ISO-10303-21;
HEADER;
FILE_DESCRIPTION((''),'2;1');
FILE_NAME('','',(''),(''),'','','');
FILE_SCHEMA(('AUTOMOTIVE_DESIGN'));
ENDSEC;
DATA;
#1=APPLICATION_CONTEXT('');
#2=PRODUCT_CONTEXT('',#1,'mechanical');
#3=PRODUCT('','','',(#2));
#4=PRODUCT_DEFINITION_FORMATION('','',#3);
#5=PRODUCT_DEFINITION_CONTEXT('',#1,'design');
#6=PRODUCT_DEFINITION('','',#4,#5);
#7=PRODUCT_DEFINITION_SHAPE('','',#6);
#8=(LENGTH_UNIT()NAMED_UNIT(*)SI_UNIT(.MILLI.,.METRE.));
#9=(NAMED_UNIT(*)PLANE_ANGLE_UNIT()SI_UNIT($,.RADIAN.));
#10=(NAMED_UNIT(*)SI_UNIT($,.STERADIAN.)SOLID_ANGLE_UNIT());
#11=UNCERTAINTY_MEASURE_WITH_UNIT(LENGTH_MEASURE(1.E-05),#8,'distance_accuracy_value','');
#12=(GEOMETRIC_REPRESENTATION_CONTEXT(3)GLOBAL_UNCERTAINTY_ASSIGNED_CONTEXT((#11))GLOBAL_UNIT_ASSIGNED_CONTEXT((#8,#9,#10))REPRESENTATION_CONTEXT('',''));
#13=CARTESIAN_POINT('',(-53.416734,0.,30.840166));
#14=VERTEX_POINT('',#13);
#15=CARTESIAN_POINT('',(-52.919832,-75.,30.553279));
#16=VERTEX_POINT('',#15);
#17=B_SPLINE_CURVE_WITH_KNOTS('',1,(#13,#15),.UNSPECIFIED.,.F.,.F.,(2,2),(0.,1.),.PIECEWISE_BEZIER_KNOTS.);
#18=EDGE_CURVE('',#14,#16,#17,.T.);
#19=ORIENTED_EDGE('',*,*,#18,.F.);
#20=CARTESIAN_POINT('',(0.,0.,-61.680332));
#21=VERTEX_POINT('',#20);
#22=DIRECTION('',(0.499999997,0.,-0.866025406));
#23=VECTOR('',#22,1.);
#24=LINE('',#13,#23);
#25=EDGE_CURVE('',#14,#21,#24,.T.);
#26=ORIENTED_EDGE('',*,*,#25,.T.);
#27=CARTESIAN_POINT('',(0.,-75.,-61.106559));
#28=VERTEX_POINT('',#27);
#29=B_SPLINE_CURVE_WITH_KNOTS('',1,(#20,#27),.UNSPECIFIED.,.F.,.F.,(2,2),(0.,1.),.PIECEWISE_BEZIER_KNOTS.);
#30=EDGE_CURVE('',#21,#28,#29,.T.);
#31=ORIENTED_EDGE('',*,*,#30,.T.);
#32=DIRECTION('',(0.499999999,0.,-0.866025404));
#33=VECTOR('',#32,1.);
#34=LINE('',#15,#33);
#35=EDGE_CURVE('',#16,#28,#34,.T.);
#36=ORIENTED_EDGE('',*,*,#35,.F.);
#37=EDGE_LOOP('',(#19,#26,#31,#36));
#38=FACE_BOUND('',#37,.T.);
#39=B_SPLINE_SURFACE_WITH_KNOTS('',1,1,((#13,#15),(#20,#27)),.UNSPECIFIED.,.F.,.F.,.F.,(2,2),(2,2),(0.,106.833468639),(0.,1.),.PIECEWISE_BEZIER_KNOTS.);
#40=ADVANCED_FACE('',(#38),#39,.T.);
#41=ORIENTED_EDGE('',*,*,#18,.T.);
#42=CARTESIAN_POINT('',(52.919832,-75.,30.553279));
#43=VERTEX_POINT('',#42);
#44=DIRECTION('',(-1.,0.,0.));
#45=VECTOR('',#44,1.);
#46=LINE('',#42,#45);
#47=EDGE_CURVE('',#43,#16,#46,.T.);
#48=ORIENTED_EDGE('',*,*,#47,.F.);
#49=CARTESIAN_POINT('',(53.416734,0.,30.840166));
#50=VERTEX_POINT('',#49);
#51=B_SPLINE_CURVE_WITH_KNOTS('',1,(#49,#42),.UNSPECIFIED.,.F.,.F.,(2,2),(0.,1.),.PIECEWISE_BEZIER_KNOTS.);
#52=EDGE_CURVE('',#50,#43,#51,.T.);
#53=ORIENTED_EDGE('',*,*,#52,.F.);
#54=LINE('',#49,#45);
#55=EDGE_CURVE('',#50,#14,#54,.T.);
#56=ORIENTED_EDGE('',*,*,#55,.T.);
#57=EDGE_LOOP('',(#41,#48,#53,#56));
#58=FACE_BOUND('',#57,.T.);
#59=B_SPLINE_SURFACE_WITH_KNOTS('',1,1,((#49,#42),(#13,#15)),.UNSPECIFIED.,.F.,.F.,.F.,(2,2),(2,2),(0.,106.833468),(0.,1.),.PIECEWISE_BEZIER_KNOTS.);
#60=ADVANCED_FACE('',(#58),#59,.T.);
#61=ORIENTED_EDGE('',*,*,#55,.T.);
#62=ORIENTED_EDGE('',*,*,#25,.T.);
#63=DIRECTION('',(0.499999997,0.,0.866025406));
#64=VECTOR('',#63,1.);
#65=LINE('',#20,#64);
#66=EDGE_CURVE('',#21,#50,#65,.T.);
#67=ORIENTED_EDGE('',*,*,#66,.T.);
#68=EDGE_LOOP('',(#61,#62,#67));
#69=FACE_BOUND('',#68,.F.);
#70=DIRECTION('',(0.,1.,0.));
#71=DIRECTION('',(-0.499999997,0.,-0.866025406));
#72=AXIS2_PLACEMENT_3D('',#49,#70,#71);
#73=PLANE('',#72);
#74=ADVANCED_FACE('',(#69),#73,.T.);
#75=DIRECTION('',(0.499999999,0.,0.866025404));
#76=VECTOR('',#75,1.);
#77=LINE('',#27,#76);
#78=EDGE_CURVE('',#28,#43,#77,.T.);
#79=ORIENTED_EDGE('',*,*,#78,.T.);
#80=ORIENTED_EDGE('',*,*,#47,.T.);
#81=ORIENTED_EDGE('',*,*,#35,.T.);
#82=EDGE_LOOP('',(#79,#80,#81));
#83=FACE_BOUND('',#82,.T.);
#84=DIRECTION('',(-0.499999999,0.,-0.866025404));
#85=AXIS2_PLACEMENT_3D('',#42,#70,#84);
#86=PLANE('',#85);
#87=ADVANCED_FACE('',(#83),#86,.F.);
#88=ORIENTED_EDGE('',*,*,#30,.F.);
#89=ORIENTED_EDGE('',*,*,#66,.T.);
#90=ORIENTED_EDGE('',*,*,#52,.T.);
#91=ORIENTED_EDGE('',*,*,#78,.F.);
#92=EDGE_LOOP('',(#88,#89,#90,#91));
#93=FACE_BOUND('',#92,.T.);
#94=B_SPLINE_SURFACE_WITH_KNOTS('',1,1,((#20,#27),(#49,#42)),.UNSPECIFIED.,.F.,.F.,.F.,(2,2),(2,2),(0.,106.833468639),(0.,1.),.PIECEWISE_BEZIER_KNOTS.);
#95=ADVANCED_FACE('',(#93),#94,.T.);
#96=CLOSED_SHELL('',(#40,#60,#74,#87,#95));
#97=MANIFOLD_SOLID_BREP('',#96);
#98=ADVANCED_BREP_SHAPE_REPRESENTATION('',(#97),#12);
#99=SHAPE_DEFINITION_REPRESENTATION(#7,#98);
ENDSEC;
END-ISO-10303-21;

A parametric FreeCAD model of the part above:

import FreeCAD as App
import Part
import Sketcher
Q = App.Units.Quantity


def add_polygon(sketch, points):
    """Adds a closed chain of lines whose ends are joined by coincident constraints."""
    first, n = sketch.GeometryCount, len(points)
    for a, b in zip(points, points[1:] + points[:1]):
        sketch.addGeometry(Part.LineSegment(App.Vector(*a, 0), App.Vector(*b, 0)), False)
    for i in range(n):
        sketch.addConstraint(Sketcher.Constraint("Coincident", first + i, 2, first + (i + 1) % n, 1))

doc = App.newDocument("Part")
body = doc.addObject("PartDesign::Body", "Body")

sketch1 = body.newObject("Sketcher::SketchObject", "Sketch")
sketch1.AttachmentSupport = (doc.getObject("XZ_Plane"), [""])
sketch1.MapMode = "FlatFace"
add_polygon(sketch1, [(53, 31), (-53, 31), (0, -62)])
sketch1.addConstraint([
    Sketcher.Constraint("Horizontal", 0),
    Sketcher.Constraint("PointOnObject", 1, 2, -2),
    Sketcher.Constraint("Equal", 1, 2),
    Sketcher.Constraint("Angle", 1, Q("-60 deg")),
    Sketcher.Constraint("DistanceY", 1, 2, 0, 2, Q("92.520498 mm")),
    Sketcher.Constraint("DistanceY", -1, 1, 0, 2, Q("30.840166 mm")),
])

sketch2 = body.newObject("Sketcher::SketchObject", "Sketch001")
sketch2.AttachmentSupport = (doc.getObject("XZ_Plane"), [""])
sketch2.MapMode = "FlatFace"
sketch2.AttachmentOffset = App.Placement(App.Vector(0, 0, 75), App.Rotation())
add_polygon(sketch2, [(53, 31), (-53, 31), (0, -61)])
sketch2.addConstraint([
    Sketcher.Constraint("Horizontal", 0),
    Sketcher.Constraint("PointOnObject", 1, 2, -2),
    Sketcher.Constraint("Equal", 1, 2),
    Sketcher.Constraint("Angle", 1, Q("-60 deg")),
    Sketcher.Constraint("DistanceX", 0, 2, 0, 1, Q("105.839664 mm")),
    Sketcher.Constraint("DistanceY", -1, 1, 0, 2, Q("30.553279 mm")),
])

additiveloft = body.newObject("PartDesign::AdditiveLoft", "AdditiveLoft")
additiveloft.Profile = sketch1
additiveloft.Sections = [sketch2]

doc.recompute()
